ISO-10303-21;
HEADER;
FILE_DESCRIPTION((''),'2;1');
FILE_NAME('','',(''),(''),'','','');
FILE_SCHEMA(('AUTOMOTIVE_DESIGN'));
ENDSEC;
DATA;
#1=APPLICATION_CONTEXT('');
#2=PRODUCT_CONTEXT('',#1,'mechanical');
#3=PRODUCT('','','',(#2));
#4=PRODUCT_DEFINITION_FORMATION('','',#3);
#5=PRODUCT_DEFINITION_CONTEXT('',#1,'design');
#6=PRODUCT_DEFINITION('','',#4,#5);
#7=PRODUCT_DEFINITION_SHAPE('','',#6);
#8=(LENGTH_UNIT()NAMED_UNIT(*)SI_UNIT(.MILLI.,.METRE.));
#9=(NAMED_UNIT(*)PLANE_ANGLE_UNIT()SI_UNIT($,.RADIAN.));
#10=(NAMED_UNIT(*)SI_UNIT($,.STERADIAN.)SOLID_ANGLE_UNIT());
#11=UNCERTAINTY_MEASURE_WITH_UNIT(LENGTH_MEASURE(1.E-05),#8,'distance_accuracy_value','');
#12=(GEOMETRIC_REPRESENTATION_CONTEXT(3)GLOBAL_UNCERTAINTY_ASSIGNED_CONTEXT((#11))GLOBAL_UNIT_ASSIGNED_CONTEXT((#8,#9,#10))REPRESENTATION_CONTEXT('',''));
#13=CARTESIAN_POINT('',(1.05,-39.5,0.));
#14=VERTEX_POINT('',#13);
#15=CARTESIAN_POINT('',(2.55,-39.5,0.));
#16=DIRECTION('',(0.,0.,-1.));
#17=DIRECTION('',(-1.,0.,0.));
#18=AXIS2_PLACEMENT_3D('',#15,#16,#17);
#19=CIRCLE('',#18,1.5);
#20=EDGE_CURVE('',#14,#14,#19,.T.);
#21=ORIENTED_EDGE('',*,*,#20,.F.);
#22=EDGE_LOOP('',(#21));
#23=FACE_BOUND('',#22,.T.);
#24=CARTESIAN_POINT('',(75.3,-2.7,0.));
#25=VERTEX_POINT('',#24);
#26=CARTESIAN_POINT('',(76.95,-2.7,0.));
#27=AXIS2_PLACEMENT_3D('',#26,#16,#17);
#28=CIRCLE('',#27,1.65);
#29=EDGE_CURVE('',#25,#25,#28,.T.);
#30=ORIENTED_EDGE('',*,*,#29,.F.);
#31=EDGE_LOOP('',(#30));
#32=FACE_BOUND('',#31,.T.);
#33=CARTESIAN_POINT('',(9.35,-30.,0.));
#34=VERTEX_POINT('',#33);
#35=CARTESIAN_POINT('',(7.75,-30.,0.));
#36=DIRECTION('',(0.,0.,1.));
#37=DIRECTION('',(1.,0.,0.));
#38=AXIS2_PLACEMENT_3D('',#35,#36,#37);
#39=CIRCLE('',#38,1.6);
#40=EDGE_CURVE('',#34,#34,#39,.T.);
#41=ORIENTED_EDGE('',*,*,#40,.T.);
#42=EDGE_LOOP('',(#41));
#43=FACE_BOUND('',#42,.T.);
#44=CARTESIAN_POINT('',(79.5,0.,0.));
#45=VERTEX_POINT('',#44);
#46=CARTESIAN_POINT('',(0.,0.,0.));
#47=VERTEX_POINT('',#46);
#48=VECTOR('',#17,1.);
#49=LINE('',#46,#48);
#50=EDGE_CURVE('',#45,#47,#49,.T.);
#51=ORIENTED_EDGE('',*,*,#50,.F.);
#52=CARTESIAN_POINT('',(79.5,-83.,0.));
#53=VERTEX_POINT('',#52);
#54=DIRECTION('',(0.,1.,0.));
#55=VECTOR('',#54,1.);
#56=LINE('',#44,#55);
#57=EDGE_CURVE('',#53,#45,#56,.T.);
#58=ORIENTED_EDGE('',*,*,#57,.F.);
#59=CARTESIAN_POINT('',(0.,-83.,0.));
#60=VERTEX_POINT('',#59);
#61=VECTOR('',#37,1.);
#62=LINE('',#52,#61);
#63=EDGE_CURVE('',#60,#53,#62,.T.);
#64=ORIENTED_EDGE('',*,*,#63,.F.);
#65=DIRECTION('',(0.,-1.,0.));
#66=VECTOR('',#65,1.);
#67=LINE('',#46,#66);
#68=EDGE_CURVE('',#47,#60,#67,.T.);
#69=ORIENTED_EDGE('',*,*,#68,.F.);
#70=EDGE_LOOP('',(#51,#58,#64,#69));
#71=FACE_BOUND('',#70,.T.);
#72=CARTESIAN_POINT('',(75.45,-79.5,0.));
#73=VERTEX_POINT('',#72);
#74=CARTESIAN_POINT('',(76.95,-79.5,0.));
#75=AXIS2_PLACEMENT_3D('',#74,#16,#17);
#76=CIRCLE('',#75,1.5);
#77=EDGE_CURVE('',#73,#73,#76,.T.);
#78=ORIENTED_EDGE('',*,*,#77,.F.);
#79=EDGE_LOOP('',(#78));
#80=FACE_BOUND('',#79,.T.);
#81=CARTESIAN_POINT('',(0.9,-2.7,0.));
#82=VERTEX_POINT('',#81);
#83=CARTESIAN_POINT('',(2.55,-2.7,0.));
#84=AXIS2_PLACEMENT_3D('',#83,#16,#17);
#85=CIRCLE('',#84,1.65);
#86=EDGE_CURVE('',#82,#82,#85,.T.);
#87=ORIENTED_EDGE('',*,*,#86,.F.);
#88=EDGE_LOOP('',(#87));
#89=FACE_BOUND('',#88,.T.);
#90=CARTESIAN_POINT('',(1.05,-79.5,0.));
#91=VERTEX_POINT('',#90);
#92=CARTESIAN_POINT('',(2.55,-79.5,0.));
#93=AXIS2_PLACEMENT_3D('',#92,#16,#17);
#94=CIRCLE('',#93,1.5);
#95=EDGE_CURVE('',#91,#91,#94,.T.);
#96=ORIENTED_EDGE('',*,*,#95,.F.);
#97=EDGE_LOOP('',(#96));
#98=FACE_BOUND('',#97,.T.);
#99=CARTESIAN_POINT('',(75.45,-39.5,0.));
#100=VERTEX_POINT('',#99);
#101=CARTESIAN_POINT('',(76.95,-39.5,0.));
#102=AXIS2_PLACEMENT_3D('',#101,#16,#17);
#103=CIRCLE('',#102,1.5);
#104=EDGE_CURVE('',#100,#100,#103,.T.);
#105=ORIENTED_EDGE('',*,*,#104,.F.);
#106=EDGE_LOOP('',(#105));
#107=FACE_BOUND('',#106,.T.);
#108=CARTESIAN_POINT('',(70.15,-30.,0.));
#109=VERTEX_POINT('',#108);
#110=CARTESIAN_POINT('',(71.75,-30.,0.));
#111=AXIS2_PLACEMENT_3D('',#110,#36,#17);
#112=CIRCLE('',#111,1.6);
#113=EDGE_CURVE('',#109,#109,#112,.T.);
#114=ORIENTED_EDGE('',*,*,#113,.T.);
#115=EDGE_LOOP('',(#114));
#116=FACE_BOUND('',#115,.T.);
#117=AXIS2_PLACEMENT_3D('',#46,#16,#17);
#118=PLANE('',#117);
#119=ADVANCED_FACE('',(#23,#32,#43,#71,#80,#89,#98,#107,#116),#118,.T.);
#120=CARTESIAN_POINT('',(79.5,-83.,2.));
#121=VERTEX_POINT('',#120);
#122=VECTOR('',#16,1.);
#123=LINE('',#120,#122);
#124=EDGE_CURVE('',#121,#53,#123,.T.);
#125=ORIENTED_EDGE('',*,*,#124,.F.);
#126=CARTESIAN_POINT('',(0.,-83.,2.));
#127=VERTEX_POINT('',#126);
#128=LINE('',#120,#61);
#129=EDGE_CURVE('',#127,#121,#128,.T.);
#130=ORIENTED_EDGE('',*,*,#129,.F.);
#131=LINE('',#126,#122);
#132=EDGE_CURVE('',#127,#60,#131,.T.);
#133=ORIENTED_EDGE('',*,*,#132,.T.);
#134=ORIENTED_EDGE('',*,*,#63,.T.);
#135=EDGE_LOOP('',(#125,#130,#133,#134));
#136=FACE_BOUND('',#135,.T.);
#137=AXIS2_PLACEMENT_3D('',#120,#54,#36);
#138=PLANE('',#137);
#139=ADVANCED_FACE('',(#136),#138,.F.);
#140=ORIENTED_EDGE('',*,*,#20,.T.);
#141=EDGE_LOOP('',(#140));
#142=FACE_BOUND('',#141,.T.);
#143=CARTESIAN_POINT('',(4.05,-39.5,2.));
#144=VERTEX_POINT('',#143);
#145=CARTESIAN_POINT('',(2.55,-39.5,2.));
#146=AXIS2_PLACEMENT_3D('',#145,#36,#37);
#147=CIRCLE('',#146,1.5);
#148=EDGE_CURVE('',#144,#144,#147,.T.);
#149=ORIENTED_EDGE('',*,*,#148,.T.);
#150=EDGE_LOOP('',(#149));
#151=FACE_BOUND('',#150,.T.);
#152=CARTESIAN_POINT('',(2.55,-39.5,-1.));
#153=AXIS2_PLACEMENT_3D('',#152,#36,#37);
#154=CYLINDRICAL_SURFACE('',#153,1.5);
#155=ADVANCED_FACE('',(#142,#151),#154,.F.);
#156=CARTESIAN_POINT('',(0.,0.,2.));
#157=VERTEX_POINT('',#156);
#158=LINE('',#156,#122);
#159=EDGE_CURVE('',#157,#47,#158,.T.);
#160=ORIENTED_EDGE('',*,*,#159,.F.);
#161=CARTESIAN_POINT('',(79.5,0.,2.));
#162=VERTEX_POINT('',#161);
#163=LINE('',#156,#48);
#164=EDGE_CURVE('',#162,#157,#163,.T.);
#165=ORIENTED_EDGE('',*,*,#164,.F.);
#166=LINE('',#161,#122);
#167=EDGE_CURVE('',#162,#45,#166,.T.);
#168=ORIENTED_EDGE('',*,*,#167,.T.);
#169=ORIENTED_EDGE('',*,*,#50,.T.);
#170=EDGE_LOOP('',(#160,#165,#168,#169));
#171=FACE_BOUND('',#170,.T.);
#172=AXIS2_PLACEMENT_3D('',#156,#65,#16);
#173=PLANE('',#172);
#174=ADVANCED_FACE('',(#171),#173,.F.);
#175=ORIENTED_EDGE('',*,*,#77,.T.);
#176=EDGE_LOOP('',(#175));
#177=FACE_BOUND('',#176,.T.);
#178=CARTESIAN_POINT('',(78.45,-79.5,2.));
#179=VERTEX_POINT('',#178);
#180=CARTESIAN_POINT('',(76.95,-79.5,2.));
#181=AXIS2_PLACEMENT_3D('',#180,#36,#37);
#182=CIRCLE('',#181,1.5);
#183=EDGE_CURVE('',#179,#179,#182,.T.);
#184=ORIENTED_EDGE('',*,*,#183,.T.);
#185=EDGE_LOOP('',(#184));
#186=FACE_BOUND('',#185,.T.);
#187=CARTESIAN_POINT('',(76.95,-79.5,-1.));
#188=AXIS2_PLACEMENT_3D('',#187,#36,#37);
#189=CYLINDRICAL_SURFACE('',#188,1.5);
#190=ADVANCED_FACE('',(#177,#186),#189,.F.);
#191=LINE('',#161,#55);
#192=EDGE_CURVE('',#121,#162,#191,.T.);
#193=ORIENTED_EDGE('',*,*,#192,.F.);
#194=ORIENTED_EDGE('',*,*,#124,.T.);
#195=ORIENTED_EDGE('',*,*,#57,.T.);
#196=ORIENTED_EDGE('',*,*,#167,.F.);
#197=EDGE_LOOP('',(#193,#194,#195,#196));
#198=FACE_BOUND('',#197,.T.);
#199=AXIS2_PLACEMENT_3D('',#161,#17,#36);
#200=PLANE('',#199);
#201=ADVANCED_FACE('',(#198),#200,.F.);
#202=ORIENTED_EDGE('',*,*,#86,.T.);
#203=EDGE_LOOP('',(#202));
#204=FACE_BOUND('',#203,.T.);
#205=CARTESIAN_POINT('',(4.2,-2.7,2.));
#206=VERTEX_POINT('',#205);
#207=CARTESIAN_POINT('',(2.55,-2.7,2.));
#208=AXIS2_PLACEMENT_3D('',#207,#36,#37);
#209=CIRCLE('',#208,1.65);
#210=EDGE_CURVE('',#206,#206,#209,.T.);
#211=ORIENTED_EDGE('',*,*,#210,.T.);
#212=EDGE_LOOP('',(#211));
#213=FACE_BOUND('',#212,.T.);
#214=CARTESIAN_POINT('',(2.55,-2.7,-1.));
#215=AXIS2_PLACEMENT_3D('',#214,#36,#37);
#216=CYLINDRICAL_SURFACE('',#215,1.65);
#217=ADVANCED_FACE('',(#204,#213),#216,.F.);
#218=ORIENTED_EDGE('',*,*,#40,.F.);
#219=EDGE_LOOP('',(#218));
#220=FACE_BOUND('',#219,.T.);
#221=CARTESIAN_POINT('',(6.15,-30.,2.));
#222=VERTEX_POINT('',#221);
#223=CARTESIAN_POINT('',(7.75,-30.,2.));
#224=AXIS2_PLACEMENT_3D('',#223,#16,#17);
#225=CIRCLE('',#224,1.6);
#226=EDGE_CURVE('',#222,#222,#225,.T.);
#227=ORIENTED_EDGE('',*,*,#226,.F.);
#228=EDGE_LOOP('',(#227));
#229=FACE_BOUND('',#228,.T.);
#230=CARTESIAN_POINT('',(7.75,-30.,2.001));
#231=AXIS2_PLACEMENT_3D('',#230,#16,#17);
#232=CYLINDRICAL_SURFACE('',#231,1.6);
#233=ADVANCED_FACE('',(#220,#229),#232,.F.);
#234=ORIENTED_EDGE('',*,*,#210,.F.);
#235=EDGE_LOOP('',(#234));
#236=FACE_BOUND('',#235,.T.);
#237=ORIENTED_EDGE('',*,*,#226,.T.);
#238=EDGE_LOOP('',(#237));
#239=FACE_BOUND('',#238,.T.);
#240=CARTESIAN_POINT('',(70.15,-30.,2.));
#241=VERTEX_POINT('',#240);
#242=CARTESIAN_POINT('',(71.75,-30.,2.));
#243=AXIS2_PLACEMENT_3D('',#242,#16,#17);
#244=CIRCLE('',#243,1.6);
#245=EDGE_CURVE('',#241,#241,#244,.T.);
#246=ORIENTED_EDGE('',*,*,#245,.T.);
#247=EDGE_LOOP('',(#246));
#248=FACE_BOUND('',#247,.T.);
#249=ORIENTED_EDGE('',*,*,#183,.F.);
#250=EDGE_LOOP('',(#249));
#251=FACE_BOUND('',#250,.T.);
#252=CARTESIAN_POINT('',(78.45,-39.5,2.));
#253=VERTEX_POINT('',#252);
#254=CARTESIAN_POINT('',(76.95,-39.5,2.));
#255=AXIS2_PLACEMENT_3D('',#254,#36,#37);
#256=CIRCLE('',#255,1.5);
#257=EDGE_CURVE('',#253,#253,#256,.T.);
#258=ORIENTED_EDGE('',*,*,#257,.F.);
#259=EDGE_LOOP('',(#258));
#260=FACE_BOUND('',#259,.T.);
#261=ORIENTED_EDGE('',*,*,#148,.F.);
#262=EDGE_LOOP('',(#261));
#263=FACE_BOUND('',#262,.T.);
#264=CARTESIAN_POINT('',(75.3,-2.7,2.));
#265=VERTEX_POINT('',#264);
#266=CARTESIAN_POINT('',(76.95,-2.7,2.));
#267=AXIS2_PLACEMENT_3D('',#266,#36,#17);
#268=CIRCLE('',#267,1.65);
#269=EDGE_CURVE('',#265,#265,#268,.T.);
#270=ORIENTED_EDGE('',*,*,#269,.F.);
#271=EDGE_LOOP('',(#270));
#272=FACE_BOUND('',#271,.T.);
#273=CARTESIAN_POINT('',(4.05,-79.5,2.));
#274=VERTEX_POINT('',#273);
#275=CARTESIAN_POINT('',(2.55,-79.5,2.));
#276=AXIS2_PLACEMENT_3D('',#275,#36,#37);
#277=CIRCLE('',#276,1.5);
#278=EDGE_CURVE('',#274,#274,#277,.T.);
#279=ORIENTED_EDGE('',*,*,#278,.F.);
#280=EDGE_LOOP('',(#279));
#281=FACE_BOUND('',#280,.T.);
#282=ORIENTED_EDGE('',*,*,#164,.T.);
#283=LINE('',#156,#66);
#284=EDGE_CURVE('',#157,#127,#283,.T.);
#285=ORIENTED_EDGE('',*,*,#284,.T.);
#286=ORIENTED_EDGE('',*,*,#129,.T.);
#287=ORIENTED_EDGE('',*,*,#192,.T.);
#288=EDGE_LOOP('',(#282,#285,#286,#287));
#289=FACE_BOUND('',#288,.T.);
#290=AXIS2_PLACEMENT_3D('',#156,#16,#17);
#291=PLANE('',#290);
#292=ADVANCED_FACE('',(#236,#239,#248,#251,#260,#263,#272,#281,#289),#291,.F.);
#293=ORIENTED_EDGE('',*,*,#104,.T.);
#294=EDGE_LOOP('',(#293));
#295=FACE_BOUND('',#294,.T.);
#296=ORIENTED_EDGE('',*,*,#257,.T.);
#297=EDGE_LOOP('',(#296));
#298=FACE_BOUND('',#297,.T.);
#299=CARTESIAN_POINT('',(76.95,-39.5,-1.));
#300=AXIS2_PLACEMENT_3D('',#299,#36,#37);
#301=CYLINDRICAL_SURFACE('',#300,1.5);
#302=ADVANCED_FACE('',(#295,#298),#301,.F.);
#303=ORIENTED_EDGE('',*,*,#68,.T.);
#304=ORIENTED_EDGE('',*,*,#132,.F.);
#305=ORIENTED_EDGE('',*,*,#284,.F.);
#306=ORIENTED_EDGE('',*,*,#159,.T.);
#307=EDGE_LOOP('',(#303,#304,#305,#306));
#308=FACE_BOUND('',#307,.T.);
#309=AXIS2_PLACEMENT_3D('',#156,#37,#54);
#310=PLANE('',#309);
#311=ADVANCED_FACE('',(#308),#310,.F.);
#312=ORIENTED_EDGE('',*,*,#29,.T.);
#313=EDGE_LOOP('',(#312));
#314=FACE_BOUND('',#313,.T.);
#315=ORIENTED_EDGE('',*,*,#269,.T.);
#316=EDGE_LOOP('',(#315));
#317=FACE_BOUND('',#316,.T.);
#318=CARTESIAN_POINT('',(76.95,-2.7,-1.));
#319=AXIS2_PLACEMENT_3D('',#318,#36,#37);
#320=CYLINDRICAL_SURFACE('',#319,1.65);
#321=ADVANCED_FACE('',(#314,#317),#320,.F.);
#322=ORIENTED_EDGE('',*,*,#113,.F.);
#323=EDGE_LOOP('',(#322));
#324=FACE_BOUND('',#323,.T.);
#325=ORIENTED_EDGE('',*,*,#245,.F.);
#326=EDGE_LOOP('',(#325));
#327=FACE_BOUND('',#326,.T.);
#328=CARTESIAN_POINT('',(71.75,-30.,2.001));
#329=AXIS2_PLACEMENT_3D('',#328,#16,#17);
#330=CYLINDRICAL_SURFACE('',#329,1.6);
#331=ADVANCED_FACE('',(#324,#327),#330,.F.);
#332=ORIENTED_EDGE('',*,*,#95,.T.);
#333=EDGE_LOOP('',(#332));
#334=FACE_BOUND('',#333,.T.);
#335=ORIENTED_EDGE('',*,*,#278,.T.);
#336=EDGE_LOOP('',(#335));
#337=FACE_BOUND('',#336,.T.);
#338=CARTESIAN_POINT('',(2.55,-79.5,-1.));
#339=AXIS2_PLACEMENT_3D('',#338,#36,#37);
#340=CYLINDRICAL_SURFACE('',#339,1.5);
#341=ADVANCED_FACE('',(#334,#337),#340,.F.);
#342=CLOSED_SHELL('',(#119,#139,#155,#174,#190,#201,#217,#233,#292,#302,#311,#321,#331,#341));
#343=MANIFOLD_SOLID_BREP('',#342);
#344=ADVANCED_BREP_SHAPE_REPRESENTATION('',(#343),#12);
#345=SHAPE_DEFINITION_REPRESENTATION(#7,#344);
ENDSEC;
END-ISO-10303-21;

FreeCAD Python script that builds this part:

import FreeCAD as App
import Part
import Sketcher
Q = App.Units.Quantity


def add_polygon(sketch, points):
    """Adds a closed chain of lines whose ends are joined by coincident constraints."""
    first, n = sketch.GeometryCount, len(points)
    for a, b in zip(points, points[1:] + points[:1]):
        sketch.addGeometry(Part.LineSegment(App.Vector(*a, 0), App.Vector(*b, 0)), False)
    for i in range(n):
        sketch.addConstraint(Sketcher.Constraint("Coincident", first + i, 2, first + (i + 1) % n, 1))

doc = App.newDocument("Part")
body = doc.addObject("PartDesign::Body", "Body")

# Sketch on XY plane
sketch1 = doc.addObject("Sketcher::SketchObject", "Sketch")
body.addObject(sketch1)
sketch1.AttachmentSupport = (doc.XY_Plane, [""])
sketch1.MapMode = "FlatFace"
add_polygon(sketch1, [(0, 0), (0, -83), (80, -83), (80, 0)])  # lines 0-3
sketch1.addConstraint(Sketcher.Constraint("Vertical", 0))
sketch1.addConstraint(Sketcher.Constraint("Horizontal", 1))
sketch1.addConstraint(Sketcher.Constraint("Vertical", 2))
sketch1.addConstraint(Sketcher.Constraint("Horizontal", 3))
sketch1.addConstraint(Sketcher.Constraint("Coincident", 3, 2, -1, 1))
sketch1.addConstraint(Sketcher.Constraint("DistanceY", 0, 2, 0, 1, Q("83 mm")))
sketch1.addConstraint(Sketcher.Constraint("DistanceX", 1, 1, 1, 2, Q("79.5 mm")))
pad1 = doc.addObject("PartDesign::Pad", "Pad")
body.addObject(pad1)
pad1.Profile = sketch1
pad1.Length = 2

# Sketch on XY plane
sketch2 = doc.addObject("Sketcher::SketchObject", "Sketch001")
body.addObject(sketch2)
sketch2.AttachmentSupport = (doc.XY_Plane, [""])
sketch2.MapMode = "FlatFace"
sketch2.AttachmentOffset = App.Placement(App.Vector(0, 0, 2), App.Rotation())
sketch2.addGeometry(Part.Circle(App.Vector(2.5, -79.5, 0), App.Vector(0, 0, 1), 1.5), False)
sketch2.addGeometry(Part.Circle(App.Vector(2.5, -39.5, 0), App.Vector(0, 0, 1), 1.5), False)
sketch2.addGeometry(Part.Circle(App.Vector(77, -39.5, 0), App.Vector(0, 0, 1), 1.5), False)
sketch2.addGeometry(Part.Circle(App.Vector(77, -79.5, 0), App.Vector(0, 0, 1), 1.5), False)
sketch2.addGeometry(Part.Circle(App.Vector(2.5, -2.7, 0), App.Vector(0, 0, 1), 1.6), False)
sketch2.addGeometry(Part.Circle(App.Vector(77, -2.7, 0), App.Vector(0, 0, 1), 1.6), False)
sketch2.addConstraint(Sketcher.Constraint("Equal", 0, 1))
sketch2.addConstraint(Sketcher.Constraint("Equal", 1, 2))
sketch2.addConstraint(Sketcher.Constraint("Equal", 2, 3))
sketch2.addConstraint(Sketcher.Constraint("Equal", 4, 5))
sketch2.addConstraint(Sketcher.Constraint("Horizontal", 1, 3, 2, 3))
sketch2.addConstraint(Sketcher.Constraint("Horizontal", 0, 3, 3, 3))
sketch2.addConstraint(Sketcher.Constraint("Horizontal", 4, 3, 5, 3))
sketch2.addConstraint(Sketcher.Constraint("Vertical", 0, 3, 1, 3))
sketch2.addConstraint(Sketcher.Constraint("Vertical", 2, 3, 3, 3))
sketch2.addConstraint(Sketcher.Constraint("Vertical", 1, 3, 4, 3))
sketch2.addConstraint(Sketcher.Constraint("Vertical", 3, 3, 5, 3))
sketch2.addConstraint(Sketcher.Constraint("Diameter", 0, Q("3 mm")))
sketch2.addConstraint(Sketcher.Constraint("Diameter", 4, Q("3.3 mm")))
sketch2.addConstraint(Sketcher.Constraint("DistanceY", 0, 3, 1, 3, Q("40 mm")))
sketch2.addConstraint(Sketcher.Constraint("DistanceY", 0, 3, -1, 1, Q("79.5 mm")))
sketch2.addConstraint(Sketcher.Constraint("DistanceY", 4, 3, -1, 1, Q("2.7 mm")))
sketch2.addConstraint(Sketcher.Constraint("DistanceX", 1, 3, 2, 3, Q("74.4 mm")))
sketch2.addConstraint(Sketcher.Constraint("DistanceX", -1, 1, 0, 3, Q("2.55 mm")))
pocket1 = doc.addObject("PartDesign::Pocket", "Pocket")
body.addObject(pocket1)
pocket1.Profile = sketch2
pocket1.Length = 3

# Sketch on XY plane
sketch3 = doc.addObject("Sketcher::SketchObject", "Sketch002")
body.addObject(sketch3)
sketch3.AttachmentSupport = (doc.XY_Plane, [""])
sketch3.MapMode = "FlatFace"
sketch3.addGeometry(Part.Circle(App.Vector(7.8, -30, 0), App.Vector(0, 0, 1), 1.6), False)
sketch3.addConstraint(Sketcher.Constraint("Diameter", 0, Q("3.2 mm")))
sketch3.addConstraint(Sketcher.Constraint("DistanceY", 0, 3, -1, 1, Q("30 mm")))
sketch3.addConstraint(Sketcher.Constraint("DistanceX", -1, 1, 0, 3, Q("7.75 mm")))
pocket2 = doc.addObject("PartDesign::Pocket", "Pocket001")
body.addObject(pocket2)
pocket2.Profile = sketch3
pocket2.Type = "UpToFirst"
pocket2.Reversed = True

# Sketch on XY plane
sketch4 = doc.addObject("Sketcher::SketchObject", "Sketch003")
body.addObject(sketch4)
sketch4.AttachmentSupport = (doc.XY_Plane, [""])
sketch4.MapMode = "FlatFace"
sketch4.addGeometry(Part.Circle(App.Vector(71.8, -30, 0), App.Vector(0, 0, 1), 1.6), False)
sketch4.addConstraint(Sketcher.Constraint("Diameter", 0, Q("3.2 mm")))
sketch4.addConstraint(Sketcher.Constraint("DistanceY", 0, 3, -1, 1, Q("30 mm")))
sketch4.addConstraint(Sketcher.Constraint("DistanceX", -1, 1, 0, 3, Q("71.75 mm")))
pocket3 = doc.addObject("PartDesign::Pocket", "Pocket002")
body.addObject(pocket3)
pocket3.Profile = sketch4
pocket3.Type = "UpToFirst"
pocket3.Reversed = True

doc.recompute()
